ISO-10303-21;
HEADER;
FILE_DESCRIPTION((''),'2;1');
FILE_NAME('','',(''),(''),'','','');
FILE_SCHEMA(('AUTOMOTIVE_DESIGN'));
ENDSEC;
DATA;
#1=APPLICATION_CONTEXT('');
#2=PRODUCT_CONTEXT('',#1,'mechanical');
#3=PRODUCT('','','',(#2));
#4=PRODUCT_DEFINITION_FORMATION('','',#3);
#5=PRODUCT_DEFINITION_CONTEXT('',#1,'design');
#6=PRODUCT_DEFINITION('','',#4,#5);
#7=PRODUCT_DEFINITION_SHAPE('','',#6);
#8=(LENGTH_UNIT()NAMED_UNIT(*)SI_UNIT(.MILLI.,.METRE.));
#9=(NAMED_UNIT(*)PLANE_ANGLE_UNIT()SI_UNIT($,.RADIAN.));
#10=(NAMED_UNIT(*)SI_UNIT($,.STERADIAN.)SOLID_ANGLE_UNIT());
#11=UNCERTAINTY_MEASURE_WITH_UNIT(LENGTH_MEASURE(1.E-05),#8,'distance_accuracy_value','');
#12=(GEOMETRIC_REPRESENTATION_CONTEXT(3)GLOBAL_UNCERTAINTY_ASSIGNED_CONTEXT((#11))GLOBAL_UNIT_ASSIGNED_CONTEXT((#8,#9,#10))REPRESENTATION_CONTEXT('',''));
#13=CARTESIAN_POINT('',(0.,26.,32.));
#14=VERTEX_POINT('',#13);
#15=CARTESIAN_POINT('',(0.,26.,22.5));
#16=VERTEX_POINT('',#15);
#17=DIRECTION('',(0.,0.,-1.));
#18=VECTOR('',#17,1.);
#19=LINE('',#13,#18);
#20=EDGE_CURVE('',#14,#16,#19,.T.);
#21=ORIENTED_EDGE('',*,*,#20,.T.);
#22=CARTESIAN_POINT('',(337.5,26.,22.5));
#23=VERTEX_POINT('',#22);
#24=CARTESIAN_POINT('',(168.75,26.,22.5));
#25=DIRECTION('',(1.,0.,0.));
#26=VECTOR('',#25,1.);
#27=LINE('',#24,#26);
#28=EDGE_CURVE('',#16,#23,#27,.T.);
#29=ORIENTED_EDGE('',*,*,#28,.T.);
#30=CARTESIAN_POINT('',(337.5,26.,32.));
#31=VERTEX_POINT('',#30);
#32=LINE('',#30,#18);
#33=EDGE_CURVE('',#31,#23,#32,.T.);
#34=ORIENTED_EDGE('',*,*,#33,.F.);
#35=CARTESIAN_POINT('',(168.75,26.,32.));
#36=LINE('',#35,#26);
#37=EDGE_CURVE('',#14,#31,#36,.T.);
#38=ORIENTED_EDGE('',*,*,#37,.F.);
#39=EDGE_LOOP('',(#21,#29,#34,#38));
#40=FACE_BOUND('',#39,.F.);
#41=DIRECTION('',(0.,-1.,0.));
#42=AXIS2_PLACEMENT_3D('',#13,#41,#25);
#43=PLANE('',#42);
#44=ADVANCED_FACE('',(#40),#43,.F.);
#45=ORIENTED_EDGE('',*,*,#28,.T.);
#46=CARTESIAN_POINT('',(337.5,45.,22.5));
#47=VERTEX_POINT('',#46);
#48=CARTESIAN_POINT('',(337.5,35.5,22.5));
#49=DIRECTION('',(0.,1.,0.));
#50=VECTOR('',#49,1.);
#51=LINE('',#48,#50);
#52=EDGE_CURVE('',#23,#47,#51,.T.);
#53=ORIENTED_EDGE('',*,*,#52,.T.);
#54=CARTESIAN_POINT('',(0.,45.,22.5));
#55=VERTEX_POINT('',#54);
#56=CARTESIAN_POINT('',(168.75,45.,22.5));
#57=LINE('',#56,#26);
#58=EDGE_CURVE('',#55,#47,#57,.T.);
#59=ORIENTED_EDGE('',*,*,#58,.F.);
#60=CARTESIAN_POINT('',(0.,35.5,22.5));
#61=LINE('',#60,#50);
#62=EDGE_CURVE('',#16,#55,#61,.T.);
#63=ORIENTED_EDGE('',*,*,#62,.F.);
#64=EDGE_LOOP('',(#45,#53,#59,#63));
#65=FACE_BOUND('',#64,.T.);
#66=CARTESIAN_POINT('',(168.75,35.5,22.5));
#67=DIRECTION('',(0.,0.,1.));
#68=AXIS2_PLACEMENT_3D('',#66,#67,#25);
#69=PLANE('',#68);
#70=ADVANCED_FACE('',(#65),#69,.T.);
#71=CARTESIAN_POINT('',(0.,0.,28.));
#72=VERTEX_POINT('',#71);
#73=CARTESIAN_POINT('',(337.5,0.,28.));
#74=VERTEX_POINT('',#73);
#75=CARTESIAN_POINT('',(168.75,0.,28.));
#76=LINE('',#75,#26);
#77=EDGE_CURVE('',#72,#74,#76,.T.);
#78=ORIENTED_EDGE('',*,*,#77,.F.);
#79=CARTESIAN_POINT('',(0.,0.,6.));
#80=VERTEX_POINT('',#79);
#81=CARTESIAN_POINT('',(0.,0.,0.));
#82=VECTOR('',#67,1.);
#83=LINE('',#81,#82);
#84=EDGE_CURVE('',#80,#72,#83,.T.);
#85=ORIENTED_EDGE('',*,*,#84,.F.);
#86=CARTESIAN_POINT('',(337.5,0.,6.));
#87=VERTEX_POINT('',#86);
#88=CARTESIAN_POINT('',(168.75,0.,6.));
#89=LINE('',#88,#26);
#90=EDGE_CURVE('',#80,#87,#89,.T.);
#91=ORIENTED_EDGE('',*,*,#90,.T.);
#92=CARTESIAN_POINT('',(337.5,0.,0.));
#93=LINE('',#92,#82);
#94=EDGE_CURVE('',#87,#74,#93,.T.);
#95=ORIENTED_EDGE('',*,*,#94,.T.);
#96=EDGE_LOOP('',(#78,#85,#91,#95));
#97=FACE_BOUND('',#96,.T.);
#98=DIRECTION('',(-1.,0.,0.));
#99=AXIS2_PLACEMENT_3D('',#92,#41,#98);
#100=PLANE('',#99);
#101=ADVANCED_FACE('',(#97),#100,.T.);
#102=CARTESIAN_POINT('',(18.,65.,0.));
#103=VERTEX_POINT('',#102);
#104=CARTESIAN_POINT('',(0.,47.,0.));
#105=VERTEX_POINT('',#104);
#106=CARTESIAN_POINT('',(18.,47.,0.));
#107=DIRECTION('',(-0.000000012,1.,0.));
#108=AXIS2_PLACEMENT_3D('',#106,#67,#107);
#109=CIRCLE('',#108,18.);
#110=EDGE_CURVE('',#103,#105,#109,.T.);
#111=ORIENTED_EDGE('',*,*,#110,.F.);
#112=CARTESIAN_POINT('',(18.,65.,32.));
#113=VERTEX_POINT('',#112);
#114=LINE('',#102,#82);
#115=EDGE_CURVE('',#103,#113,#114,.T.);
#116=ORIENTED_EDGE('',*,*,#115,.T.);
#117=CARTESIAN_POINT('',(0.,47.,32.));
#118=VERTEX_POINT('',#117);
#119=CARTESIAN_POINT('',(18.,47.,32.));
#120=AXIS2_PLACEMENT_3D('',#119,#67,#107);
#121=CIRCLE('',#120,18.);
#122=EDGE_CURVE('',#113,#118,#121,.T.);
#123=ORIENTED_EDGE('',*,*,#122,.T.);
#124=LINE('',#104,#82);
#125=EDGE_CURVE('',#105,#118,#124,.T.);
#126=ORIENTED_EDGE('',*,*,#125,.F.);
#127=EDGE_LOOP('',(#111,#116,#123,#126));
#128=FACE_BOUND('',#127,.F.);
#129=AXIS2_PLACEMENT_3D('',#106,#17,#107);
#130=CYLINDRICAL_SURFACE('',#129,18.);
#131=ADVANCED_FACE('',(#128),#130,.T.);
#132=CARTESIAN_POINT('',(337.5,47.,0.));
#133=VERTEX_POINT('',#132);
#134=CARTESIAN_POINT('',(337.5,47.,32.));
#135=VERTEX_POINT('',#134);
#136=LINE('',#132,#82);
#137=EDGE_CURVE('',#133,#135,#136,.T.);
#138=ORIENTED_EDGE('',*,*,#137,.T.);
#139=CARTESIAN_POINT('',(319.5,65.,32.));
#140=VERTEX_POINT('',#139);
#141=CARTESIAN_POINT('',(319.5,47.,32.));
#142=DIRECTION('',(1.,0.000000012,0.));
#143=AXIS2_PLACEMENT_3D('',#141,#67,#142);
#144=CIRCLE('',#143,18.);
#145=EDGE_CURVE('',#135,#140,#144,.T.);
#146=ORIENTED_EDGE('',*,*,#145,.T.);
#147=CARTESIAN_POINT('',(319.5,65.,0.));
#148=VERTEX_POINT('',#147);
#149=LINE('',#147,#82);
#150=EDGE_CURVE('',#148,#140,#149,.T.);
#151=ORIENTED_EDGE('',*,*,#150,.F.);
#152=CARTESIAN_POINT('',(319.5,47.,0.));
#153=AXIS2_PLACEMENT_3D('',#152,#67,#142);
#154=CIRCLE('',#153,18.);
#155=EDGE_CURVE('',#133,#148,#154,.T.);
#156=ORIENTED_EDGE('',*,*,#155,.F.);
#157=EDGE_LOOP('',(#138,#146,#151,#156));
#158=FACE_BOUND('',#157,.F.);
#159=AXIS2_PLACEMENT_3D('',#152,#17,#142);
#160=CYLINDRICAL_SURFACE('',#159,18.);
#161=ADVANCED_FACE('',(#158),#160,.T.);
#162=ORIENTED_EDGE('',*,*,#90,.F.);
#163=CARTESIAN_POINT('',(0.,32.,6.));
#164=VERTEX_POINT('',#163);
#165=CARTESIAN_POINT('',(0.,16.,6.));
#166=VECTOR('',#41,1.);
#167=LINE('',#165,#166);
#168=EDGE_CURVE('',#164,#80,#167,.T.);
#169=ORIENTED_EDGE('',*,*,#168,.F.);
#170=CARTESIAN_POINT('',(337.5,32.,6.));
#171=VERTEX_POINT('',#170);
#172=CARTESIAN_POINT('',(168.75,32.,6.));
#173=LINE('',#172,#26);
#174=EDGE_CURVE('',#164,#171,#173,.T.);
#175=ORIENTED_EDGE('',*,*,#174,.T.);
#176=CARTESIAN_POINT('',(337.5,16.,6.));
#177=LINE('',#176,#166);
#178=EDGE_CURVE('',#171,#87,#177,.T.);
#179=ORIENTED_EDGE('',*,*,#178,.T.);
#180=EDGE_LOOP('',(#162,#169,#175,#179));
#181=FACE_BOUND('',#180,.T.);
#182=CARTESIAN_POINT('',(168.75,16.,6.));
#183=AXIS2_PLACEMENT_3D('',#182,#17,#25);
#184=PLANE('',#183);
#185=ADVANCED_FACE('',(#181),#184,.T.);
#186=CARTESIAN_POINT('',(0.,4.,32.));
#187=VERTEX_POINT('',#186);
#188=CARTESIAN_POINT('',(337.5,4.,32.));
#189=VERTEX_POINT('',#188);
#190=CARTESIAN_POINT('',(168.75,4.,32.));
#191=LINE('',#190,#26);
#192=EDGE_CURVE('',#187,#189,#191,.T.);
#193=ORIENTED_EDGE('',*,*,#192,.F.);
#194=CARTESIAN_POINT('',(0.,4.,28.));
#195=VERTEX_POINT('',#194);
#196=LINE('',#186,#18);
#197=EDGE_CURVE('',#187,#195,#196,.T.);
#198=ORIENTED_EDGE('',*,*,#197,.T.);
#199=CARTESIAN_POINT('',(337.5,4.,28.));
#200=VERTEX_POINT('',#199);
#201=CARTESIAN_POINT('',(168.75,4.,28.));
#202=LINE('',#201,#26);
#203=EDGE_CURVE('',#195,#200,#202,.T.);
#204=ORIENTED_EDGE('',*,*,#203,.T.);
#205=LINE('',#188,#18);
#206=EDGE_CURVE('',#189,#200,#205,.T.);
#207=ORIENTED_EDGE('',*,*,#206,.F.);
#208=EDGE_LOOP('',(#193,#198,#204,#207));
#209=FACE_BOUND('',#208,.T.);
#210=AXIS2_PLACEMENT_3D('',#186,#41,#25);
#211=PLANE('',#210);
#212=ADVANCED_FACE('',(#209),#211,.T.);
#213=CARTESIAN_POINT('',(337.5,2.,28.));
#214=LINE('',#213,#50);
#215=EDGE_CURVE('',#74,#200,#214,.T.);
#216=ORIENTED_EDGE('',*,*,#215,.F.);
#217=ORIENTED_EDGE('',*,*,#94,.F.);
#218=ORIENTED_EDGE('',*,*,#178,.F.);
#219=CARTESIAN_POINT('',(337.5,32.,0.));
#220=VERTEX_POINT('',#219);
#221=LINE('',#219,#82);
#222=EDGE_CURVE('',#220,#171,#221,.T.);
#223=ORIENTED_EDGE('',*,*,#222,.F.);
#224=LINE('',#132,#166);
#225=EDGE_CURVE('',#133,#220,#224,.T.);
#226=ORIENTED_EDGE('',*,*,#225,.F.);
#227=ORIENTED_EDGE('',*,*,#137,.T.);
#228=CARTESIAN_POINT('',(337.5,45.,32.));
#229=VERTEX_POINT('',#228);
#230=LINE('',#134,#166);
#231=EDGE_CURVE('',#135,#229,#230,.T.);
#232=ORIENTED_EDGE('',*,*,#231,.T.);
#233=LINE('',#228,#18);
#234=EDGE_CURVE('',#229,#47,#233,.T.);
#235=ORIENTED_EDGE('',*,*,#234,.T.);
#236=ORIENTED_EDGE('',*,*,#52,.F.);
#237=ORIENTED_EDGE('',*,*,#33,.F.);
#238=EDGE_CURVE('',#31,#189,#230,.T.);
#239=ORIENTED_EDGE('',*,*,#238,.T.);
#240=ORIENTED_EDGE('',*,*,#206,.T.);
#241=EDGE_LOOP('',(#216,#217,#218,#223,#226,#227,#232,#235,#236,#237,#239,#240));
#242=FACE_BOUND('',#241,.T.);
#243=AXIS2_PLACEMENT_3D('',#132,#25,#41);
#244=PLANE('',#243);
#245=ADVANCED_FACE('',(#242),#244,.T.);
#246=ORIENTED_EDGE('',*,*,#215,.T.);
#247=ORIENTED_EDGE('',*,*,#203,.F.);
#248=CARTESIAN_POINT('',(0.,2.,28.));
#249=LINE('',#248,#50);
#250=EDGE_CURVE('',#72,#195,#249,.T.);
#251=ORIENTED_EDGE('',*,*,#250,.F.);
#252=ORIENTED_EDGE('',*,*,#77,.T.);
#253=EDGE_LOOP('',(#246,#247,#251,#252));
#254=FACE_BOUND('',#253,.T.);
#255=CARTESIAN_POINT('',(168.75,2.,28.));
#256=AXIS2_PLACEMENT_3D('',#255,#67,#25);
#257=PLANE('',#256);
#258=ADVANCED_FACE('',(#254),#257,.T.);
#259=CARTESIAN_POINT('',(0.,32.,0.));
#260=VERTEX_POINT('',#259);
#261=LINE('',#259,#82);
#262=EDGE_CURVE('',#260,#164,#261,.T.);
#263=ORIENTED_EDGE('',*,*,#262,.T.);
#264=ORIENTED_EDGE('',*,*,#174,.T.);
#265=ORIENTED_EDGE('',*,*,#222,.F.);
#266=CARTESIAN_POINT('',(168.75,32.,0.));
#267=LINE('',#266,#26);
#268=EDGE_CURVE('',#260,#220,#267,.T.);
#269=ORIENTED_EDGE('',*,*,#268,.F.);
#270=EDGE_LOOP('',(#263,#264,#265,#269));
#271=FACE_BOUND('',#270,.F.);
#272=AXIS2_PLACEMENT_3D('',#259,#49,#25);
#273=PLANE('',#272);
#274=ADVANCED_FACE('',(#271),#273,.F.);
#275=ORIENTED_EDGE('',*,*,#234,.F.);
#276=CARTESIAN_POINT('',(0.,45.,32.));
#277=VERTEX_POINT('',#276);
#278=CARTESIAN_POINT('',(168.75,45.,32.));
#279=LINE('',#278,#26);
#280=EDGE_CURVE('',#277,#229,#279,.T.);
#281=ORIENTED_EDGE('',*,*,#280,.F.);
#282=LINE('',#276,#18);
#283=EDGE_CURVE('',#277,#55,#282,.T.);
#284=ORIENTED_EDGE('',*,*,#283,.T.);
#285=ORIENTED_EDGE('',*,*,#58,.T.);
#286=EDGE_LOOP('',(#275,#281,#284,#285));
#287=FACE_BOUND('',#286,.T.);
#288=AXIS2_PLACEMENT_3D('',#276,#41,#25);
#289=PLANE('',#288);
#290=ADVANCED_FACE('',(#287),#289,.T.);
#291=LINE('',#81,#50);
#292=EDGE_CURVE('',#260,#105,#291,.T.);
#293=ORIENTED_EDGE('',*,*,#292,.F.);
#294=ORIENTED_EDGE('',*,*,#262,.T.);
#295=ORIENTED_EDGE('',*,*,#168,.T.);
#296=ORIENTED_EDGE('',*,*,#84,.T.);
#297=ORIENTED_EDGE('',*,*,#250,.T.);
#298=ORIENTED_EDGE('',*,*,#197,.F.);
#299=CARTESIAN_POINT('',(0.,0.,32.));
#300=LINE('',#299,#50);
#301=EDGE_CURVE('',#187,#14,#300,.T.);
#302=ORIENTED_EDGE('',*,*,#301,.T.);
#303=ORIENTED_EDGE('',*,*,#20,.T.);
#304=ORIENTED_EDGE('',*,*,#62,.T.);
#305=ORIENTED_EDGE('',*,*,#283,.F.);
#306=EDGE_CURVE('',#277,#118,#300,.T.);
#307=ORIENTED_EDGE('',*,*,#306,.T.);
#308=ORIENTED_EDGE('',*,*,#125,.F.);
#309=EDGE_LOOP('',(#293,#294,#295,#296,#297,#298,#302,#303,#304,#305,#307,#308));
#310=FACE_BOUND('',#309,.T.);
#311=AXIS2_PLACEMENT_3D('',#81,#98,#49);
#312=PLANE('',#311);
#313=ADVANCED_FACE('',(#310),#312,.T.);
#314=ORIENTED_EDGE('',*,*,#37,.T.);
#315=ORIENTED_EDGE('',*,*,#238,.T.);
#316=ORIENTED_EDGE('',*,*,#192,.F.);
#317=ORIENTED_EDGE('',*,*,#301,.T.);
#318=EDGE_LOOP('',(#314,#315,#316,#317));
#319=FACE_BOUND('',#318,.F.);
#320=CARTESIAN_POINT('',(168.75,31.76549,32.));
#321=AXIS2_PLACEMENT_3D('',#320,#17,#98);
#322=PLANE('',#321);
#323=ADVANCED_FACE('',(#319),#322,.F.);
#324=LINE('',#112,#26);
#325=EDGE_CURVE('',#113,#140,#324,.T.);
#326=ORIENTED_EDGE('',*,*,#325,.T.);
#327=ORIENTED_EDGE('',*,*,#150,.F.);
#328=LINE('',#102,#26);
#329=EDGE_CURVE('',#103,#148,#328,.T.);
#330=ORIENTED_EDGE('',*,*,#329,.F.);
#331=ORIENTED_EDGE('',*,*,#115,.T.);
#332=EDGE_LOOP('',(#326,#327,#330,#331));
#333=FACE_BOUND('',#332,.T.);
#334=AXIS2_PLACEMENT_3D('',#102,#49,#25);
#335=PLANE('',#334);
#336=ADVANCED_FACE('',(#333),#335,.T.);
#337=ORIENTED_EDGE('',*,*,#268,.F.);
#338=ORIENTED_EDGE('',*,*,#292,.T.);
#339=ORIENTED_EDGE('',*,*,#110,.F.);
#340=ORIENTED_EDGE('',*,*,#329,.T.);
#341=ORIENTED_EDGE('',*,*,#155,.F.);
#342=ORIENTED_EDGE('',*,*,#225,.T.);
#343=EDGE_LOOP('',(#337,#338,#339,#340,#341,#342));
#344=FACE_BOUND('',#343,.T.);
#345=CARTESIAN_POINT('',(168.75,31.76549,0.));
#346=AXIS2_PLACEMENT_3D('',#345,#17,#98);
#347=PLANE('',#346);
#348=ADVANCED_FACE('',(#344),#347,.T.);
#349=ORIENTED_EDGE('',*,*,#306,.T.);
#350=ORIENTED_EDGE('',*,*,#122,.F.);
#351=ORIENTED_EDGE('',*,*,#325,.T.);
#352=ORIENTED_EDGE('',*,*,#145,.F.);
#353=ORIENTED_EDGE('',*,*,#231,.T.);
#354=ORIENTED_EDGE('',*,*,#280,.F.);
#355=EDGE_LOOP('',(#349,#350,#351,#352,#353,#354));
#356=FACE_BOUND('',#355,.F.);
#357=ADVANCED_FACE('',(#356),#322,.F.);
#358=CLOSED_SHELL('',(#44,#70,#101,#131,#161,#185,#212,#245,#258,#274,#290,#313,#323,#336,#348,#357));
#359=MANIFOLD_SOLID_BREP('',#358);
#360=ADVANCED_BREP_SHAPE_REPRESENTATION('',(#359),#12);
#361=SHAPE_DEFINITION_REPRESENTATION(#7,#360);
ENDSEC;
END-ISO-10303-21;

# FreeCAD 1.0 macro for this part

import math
import FreeCAD as App
import Part
import Sketcher
from FreeCAD import Vector
Q = App.Units.Quantity

doc = App.newDocument("Part")
params = doc.addObject("Spreadsheet::Sheet", "Params")
for row, (alias, value) in enumerate([
    ("sketch1_radius", "18 mm"),
    ("sketch1_height", "47 mm"),
    ("sketch1_width", "301.5 mm"),
    ("pad1_length", "32 mm"),
    ("sketch2_height", "19 mm"),
    ("sketch2_width", "337.5 mm"),
    ("pocket1_length", "9.5 mm"),
    ("sketch3_height", "4 mm"),
    ("sketch3_width", "337.5 mm"),
    ("pocket2_length", "4 mm"),
    ("sketch4_height", "32 mm"),
    ("sketch4_width", "337.5 mm"),
    ("pocket3_length", "6 mm"),
], start=1):
    params.set(f"A{row}", alias)
    params.set(f"B{row}", "=" + value)
    params.setAlias(f"B{row}", alias)

body = doc.addObject("PartDesign::Body", "Body")

# Sketch on XY plane
sketch1 = doc.addObject("Sketcher::SketchObject", "Sketch")
body.addObject(sketch1)
sketch1.AttachmentSupport = (doc.XY_Plane, [""])
sketch1.MapMode = "FlatFace"
sketch1.addGeometry([
    Part.LineSegment(Vector(319.5, 65, 0), Vector(18, 65, 0)),  # 0
    Part.ArcOfCircle(Part.Circle(Vector(18, 47, 0), Vector(0, 0, 1), 18), math.radians(90.000001), math.radians(179.999999)),  # 1
    Part.LineSegment(Vector(0, 47, 0), Vector(0, 0, 0)),  # 2
    Part.LineSegment(Vector(0, 0, 0), Vector(337.5, 0, 0)),  # 3
    Part.LineSegment(Vector(337.5, 0, 0), Vector(337.5, 47, 0)),  # 4
    Part.ArcOfCircle(Part.Circle(Vector(319.5, 47, 0), Vector(0, 0, 1), 18), math.radians(0.000001), math.radians(89.999999)),  # 5
], False)
sketch1.addConstraint([
    Sketcher.Constraint("Tangent", 0, 2, 1, 1),
    Sketcher.Constraint("Tangent", 1, 2, 2, 1),
    Sketcher.Constraint("Coincident", 2, 2, 3, 1),
    Sketcher.Constraint("Coincident", 3, 2, 4, 1),
    Sketcher.Constraint("Tangent", 4, 2, 5, 1),
    Sketcher.Constraint("Tangent", 5, 2, 0, 1),
    Sketcher.Constraint("Horizontal", 0),
    Sketcher.Constraint("Vertical", 2),
    Sketcher.Constraint("Horizontal", 3),
    Sketcher.Constraint("Vertical", 4),
    Sketcher.Constraint("Coincident", 2, 2, -1, 1),
    Sketcher.Constraint("Equal", 1, 5),
    Sketcher.Constraint("Radius", 1, Q("18 mm")),
    Sketcher.Constraint("DistanceY", 2, 2, 2, 1, Q("47 mm")),
    Sketcher.Constraint("DistanceX", 0, 2, 0, 1, Q("301.5 mm")),
])
sketch1.setExpression("Constraints[12]", "Params.sketch1_radius")
sketch1.setExpression("Constraints[13]", "Params.sketch1_height")
sketch1.setExpression("Constraints[14]", "Params.sketch1_width")
pad1 = doc.addObject("PartDesign::Pad", "Pad")
body.addObject(pad1)
pad1.Profile = sketch1
pad1.setExpression("Length", "Params.pad1_length")

# Sketch on XY plane
sketch2 = doc.addObject("Sketcher::SketchObject", "Sketch001")
body.addObject(sketch2)
sketch2.AttachmentSupport = (doc.XY_Plane, [""])
sketch2.MapMode = "FlatFace"
sketch2.AttachmentOffset = App.Placement(Vector(0, 0, 32), App.Rotation())
sketch2.addGeometry([
    Part.LineSegment(Vector(0, 45, 0), Vector(0, 26, 0)),
    Part.LineSegment(Vector(0, 26, 0), Vector(337.5, 26, 0)),
    Part.LineSegment(Vector(337.5, 26, 0), Vector(337.5, 45, 0)),
    Part.LineSegment(Vector(337.5, 45, 0), Vector(0, 45, 0)),
], False)
sketch2.addConstraint([
    Sketcher.Constraint("Coincident", 0, 2, 1, 1),
    Sketcher.Constraint("Coincident", 1, 2, 2, 1),
    Sketcher.Constraint("Coincident", 2, 2, 3, 1),
    Sketcher.Constraint("Coincident", 3, 2, 0, 1),
    Sketcher.Constraint("Vertical", 0),
    Sketcher.Constraint("Horizontal", 1),
    Sketcher.Constraint("Vertical", 2),
    Sketcher.Constraint("Horizontal", 3),
    Sketcher.Constraint("PointOnObject", 0, 2, -2),
    Sketcher.Constraint("DistanceY", 0, 2, 0, 1, Q("19 mm")),
    Sketcher.Constraint("DistanceX", 1, 1, 1, 2, Q("337.5 mm")),
    Sketcher.Constraint("DistanceY", -1, 1, 0, 2, Q("26 mm")),
])
sketch2.setExpression("Constraints[9]", "Params.sketch2_height")
sketch2.setExpression("Constraints[10]", "Params.sketch2_width")
pocket1 = doc.addObject("PartDesign::Pocket", "Pocket")
body.addObject(pocket1)
pocket1.Profile = sketch2
pocket1.setExpression("Length", "Params.pocket1_length")

# Sketch on XY plane
sketch3 = doc.addObject("Sketcher::SketchObject", "Sketch002")
body.addObject(sketch3)
sketch3.AttachmentSupport = (doc.XY_Plane, [""])
sketch3.MapMode = "FlatFace"
sketch3.AttachmentOffset = App.Placement(Vector(0, 0, 32), App.Rotation())
sketch3.addGeometry([
    Part.LineSegment(Vector(0, 4, 0), Vector(0, 0, 0)),
    Part.LineSegment(Vector(0, 0, 0), Vector(337.5, 0, 0)),
    Part.LineSegment(Vector(337.5, 0, 0), Vector(337.5, 4, 0)),
    Part.LineSegment(Vector(337.5, 4, 0), Vector(0, 4, 0)),
], False)
sketch3.addConstraint([
    Sketcher.Constraint("Coincident", 0, 2, 1, 1),
    Sketcher.Constraint("Coincident", 1, 2, 2, 1),
    Sketcher.Constraint("Coincident", 2, 2, 3, 1),
    Sketcher.Constraint("Coincident", 3, 2, 0, 1),
    Sketcher.Constraint("Vertical", 0),
    Sketcher.Constraint("Horizontal", 1),
    Sketcher.Constraint("Vertical", 2),
    Sketcher.Constraint("Horizontal", 3),
    Sketcher.Constraint("Coincident", 0, 2, -1, 1),
    Sketcher.Constraint("DistanceY", 0, 2, 0, 1, Q("4 mm")),
    Sketcher.Constraint("DistanceX", 1, 1, 1, 2, Q("337.5 mm")),
])
sketch3.setExpression("Constraints[9]", "Params.sketch3_height")
sketch3.setExpression("Constraints[10]", "Params.sketch3_width")
pocket2 = doc.addObject("PartDesign::Pocket", "Pocket001")
body.addObject(pocket2)
pocket2.Profile = sketch3
pocket2.setExpression("Length", "Params.pocket2_length")

# Sketch on XY plane
sketch4 = doc.addObject("Sketcher::SketchObject", "Sketch003")
body.addObject(sketch4)
sketch4.AttachmentSupport = (doc.XY_Plane, [""])
sketch4.MapMode = "FlatFace"
sketch4.addGeometry([
    Part.LineSegment(Vector(0, 0, 0), Vector(0, 32, 0)),
    Part.LineSegment(Vector(0, 32, 0), Vector(337.5, 32, 0)),
    Part.LineSegment(Vector(337.5, 32, 0), Vector(337.5, 0, 0)),
    Part.LineSegment(Vector(337.5, 0, 0), Vector(0, 0, 0)),
], False)
sketch4.addConstraint([
    Sketcher.Constraint("Coincident", 0, 2, 1, 1),
    Sketcher.Constraint("Coincident", 1, 2, 2, 1),
    Sketcher.Constraint("Coincident", 2, 2, 3, 1),
    Sketcher.Constraint("Coincident", 3, 2, 0, 1),
    Sketcher.Constraint("Vertical", 0),
    Sketcher.Constraint("Horizontal", 1),
    Sketcher.Constraint("Vertical", 2),
    Sketcher.Constraint("Horizontal", 3),
    Sketcher.Constraint("Coincident", 3, 2, -1, 1),
    Sketcher.Constraint("DistanceY", 0, 1, 0, 2, Q("32 mm")),
    Sketcher.Constraint("DistanceX", 1, 1, 1, 2, Q("337.5 mm")),
])
sketch4.setExpression("Constraints[9]", "Params.sketch4_height")
sketch4.setExpression("Constraints[10]", "Params.sketch4_width")
pocket3 = doc.addObject("PartDesign::Pocket", "Pocket002")
body.addObject(pocket3)
pocket3.Profile = sketch4
pocket3.setExpression("Length", "Params.pocket3_length")
pocket3.Reversed = True

doc.recompute()
